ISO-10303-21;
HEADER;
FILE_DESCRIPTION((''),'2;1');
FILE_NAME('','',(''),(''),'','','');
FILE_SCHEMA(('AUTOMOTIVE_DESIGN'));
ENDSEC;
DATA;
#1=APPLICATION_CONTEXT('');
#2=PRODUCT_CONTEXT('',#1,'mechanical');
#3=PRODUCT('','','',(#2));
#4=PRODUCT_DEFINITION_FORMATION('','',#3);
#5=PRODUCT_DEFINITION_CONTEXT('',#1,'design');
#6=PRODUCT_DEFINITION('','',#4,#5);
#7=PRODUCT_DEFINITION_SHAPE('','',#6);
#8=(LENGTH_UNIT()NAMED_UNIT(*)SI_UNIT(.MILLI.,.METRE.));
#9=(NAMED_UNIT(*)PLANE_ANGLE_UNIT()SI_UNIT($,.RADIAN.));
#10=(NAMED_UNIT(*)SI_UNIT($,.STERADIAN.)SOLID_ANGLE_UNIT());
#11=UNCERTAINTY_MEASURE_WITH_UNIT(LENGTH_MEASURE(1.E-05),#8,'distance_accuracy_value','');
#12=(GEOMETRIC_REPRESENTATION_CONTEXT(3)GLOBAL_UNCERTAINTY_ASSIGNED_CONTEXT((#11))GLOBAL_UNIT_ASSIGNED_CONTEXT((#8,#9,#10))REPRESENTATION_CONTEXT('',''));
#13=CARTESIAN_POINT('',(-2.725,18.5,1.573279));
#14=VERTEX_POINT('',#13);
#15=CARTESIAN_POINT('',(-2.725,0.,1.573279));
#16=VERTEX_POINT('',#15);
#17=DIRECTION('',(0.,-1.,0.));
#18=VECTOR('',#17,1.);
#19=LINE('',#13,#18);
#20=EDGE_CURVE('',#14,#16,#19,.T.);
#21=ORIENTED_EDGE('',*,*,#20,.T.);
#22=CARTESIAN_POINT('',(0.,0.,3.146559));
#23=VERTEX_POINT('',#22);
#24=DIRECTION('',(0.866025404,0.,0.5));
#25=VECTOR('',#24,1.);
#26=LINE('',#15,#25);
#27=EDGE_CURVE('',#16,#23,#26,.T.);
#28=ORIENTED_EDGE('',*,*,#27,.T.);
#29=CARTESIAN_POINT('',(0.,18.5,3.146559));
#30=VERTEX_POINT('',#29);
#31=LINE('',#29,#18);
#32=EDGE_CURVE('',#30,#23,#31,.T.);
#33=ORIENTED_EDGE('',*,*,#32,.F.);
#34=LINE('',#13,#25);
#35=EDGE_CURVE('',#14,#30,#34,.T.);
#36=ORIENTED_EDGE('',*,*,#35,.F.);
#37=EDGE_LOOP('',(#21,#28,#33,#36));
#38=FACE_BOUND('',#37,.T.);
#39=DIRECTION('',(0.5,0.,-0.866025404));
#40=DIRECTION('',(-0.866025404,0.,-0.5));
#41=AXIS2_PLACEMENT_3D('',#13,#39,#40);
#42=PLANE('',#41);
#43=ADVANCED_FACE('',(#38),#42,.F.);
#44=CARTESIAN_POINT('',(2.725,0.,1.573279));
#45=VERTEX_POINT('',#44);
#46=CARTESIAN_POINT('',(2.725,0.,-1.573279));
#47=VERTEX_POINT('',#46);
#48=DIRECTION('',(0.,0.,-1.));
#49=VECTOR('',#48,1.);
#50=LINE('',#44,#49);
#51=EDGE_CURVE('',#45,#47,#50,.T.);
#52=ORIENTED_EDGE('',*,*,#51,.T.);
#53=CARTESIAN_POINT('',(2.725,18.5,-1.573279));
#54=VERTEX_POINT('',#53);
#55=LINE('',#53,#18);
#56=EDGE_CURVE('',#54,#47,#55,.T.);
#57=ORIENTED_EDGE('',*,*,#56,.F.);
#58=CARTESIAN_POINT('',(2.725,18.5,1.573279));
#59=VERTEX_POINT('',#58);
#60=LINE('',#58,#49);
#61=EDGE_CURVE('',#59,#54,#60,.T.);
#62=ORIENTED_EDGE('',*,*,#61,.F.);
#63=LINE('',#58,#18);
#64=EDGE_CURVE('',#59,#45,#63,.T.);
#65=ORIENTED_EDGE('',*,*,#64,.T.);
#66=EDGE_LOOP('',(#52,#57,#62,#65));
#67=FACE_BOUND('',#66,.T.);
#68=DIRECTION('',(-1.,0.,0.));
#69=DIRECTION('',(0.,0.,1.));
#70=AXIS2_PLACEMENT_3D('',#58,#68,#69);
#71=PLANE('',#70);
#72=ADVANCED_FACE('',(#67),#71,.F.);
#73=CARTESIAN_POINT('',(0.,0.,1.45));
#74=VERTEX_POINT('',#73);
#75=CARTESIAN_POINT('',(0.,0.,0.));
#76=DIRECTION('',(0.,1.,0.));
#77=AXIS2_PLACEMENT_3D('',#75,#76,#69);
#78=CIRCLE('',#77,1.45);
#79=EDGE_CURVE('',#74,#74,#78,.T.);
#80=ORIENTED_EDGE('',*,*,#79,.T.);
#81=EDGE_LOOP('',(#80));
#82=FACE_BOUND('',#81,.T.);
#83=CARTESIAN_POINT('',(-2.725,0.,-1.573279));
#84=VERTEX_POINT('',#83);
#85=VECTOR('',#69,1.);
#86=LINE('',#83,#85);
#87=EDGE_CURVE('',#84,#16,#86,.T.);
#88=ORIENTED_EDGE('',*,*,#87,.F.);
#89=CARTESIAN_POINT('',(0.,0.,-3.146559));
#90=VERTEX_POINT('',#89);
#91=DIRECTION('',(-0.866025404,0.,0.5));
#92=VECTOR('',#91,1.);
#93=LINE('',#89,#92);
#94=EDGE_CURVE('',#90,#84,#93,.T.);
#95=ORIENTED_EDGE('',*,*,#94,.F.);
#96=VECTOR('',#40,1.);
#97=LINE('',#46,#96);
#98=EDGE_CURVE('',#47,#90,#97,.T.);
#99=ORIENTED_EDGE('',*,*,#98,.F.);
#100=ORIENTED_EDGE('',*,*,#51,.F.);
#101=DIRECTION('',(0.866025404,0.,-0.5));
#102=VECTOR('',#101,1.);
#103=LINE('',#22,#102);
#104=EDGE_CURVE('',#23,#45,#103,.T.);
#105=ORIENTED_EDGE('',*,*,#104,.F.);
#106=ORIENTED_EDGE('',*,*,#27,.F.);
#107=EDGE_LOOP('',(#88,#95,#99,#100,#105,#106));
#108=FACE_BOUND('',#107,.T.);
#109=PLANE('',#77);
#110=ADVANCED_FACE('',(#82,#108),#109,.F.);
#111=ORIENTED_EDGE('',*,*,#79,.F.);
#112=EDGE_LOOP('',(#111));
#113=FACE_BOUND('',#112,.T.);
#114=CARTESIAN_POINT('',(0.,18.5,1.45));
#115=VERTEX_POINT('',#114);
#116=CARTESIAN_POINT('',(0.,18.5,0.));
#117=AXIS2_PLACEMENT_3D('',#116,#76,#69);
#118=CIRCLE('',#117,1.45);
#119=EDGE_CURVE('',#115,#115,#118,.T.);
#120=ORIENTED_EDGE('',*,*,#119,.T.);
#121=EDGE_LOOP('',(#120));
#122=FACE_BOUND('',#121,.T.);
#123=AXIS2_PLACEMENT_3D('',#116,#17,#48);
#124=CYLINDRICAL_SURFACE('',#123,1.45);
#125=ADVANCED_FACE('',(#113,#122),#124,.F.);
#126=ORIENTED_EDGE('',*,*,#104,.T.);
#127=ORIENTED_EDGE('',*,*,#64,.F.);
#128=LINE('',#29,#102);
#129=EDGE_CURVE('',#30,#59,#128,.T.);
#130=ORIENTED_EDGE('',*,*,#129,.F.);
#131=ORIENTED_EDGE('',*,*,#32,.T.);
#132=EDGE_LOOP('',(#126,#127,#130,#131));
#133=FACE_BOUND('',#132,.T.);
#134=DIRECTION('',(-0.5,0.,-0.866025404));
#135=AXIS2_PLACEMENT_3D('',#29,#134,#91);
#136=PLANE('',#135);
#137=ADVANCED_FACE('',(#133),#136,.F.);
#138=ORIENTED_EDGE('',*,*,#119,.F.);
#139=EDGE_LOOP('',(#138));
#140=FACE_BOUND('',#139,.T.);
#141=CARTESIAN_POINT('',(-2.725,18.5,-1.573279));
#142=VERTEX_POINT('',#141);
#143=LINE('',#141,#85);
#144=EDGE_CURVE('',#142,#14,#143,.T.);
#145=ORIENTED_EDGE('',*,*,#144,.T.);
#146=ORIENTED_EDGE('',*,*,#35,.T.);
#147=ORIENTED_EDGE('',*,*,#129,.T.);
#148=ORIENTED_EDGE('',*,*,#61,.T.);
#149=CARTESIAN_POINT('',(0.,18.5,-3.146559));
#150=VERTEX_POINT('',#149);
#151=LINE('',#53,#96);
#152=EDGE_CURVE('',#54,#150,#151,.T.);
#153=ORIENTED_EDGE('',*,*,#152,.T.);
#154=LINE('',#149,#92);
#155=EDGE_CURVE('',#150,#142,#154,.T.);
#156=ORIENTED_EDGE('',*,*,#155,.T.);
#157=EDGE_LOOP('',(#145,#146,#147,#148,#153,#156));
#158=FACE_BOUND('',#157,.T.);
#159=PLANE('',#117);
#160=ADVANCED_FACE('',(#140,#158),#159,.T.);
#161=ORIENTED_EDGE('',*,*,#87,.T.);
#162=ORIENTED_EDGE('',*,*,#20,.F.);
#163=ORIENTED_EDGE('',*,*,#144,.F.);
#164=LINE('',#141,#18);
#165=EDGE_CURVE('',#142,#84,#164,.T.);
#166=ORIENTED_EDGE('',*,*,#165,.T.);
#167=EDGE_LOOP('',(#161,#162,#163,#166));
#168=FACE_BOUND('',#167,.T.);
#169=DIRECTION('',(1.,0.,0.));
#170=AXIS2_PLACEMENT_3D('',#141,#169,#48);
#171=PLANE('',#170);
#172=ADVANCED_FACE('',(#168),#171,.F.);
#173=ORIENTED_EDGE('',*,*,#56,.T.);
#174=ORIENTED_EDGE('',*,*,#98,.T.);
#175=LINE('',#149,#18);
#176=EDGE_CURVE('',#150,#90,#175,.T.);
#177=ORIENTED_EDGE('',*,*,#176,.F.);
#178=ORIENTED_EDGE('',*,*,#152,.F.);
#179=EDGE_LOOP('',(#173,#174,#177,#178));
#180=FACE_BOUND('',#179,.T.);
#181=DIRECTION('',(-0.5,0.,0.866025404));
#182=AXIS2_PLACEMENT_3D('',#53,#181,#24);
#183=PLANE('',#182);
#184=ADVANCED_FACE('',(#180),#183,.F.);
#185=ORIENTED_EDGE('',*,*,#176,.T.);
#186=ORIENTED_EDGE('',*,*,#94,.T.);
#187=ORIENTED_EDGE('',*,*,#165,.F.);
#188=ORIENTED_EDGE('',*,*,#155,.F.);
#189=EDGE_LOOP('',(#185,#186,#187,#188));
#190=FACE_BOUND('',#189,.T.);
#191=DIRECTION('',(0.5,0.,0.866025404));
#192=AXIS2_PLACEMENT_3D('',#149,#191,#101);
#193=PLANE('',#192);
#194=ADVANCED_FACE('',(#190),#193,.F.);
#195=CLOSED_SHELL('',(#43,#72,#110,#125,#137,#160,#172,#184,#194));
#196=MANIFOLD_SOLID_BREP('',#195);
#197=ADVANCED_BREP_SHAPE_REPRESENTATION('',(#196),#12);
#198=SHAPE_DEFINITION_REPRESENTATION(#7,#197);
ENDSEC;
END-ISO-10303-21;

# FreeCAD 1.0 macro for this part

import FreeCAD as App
import Part
import Sketcher
from FreeCAD import Vector
Q = App.Units.Quantity

doc = App.newDocument("Part")
body = doc.addObject("PartDesign::Body", "Body")

# Sketch on XZ plane
sketch1 = body.newObject("Sketcher::SketchObject", "Sketch")
sketch1.AttachmentSupport = (doc.getObject("XZ_Plane"), [""])
sketch1.MapMode = "FlatFace"
sketch1.addGeometry([
    Part.LineSegment(Vector(0, -3.1, 0), Vector(-2.7, -1.6, 0)),  # 0
    Part.LineSegment(Vector(-2.7, -1.6, 0), Vector(-2.7, 1.6, 0)),  # 1
    Part.LineSegment(Vector(-2.7, 1.6, 0), Vector(0, 3.1, 0)),  # 2
    Part.LineSegment(Vector(0, 3.1, 0), Vector(2.7, 1.6, 0)),  # 3
    Part.LineSegment(Vector(2.7, 1.6, 0), Vector(2.7, -1.6, 0)),  # 4
    Part.LineSegment(Vector(2.7, -1.6, 0), Vector(0, -3.1, 0)),  # 5
    Part.Circle(Vector(0, 0, 0), Vector(0, 0, 1), 1.4),  # 6
], False)
sketch1.addConstraint([
    Sketcher.Constraint("Coincident", 0, 2, 1, 1),
    Sketcher.Constraint("Coincident", 1, 2, 2, 1),
    Sketcher.Constraint("Coincident", 2, 2, 3, 1),
    Sketcher.Constraint("Coincident", 3, 2, 4, 1),
    Sketcher.Constraint("Coincident", 4, 2, 5, 1),
    Sketcher.Constraint("Coincident", 5, 2, 0, 1),
    Sketcher.Constraint("Vertical", 1),
    Sketcher.Constraint("Vertical", 4),
    Sketcher.Constraint("Coincident", 6, 3, -1, 1),
    Sketcher.Constraint("Symmetric", 0, 2, 3, 2, -1, 1),
    Sketcher.Constraint("Symmetric", 2, 2, 5, 2, -1, 1),
    Sketcher.Constraint("PointOnObject", 2, 2, -2),
    Sketcher.Constraint("Parallel", 2, 5),
    Sketcher.Constraint("Horizontal", 1, 2, 3, 2),
    Sketcher.Constraint("Diameter", 6, 2.9),
    Sketcher.Constraint("Angle", 0, Q("150 deg")),
    Sketcher.Constraint("DistanceX", 1, 2, 3, 2, 5.45),
    Sketcher.Constraint("DistanceY", 1, 1, 1, 2, 3.146559),
])
pad1 = body.newObject("PartDesign::Pad", "Pad")
pad1.Profile = sketch1
pad1.Length = 18.5
pad1.Reversed = True

doc.recompute()
